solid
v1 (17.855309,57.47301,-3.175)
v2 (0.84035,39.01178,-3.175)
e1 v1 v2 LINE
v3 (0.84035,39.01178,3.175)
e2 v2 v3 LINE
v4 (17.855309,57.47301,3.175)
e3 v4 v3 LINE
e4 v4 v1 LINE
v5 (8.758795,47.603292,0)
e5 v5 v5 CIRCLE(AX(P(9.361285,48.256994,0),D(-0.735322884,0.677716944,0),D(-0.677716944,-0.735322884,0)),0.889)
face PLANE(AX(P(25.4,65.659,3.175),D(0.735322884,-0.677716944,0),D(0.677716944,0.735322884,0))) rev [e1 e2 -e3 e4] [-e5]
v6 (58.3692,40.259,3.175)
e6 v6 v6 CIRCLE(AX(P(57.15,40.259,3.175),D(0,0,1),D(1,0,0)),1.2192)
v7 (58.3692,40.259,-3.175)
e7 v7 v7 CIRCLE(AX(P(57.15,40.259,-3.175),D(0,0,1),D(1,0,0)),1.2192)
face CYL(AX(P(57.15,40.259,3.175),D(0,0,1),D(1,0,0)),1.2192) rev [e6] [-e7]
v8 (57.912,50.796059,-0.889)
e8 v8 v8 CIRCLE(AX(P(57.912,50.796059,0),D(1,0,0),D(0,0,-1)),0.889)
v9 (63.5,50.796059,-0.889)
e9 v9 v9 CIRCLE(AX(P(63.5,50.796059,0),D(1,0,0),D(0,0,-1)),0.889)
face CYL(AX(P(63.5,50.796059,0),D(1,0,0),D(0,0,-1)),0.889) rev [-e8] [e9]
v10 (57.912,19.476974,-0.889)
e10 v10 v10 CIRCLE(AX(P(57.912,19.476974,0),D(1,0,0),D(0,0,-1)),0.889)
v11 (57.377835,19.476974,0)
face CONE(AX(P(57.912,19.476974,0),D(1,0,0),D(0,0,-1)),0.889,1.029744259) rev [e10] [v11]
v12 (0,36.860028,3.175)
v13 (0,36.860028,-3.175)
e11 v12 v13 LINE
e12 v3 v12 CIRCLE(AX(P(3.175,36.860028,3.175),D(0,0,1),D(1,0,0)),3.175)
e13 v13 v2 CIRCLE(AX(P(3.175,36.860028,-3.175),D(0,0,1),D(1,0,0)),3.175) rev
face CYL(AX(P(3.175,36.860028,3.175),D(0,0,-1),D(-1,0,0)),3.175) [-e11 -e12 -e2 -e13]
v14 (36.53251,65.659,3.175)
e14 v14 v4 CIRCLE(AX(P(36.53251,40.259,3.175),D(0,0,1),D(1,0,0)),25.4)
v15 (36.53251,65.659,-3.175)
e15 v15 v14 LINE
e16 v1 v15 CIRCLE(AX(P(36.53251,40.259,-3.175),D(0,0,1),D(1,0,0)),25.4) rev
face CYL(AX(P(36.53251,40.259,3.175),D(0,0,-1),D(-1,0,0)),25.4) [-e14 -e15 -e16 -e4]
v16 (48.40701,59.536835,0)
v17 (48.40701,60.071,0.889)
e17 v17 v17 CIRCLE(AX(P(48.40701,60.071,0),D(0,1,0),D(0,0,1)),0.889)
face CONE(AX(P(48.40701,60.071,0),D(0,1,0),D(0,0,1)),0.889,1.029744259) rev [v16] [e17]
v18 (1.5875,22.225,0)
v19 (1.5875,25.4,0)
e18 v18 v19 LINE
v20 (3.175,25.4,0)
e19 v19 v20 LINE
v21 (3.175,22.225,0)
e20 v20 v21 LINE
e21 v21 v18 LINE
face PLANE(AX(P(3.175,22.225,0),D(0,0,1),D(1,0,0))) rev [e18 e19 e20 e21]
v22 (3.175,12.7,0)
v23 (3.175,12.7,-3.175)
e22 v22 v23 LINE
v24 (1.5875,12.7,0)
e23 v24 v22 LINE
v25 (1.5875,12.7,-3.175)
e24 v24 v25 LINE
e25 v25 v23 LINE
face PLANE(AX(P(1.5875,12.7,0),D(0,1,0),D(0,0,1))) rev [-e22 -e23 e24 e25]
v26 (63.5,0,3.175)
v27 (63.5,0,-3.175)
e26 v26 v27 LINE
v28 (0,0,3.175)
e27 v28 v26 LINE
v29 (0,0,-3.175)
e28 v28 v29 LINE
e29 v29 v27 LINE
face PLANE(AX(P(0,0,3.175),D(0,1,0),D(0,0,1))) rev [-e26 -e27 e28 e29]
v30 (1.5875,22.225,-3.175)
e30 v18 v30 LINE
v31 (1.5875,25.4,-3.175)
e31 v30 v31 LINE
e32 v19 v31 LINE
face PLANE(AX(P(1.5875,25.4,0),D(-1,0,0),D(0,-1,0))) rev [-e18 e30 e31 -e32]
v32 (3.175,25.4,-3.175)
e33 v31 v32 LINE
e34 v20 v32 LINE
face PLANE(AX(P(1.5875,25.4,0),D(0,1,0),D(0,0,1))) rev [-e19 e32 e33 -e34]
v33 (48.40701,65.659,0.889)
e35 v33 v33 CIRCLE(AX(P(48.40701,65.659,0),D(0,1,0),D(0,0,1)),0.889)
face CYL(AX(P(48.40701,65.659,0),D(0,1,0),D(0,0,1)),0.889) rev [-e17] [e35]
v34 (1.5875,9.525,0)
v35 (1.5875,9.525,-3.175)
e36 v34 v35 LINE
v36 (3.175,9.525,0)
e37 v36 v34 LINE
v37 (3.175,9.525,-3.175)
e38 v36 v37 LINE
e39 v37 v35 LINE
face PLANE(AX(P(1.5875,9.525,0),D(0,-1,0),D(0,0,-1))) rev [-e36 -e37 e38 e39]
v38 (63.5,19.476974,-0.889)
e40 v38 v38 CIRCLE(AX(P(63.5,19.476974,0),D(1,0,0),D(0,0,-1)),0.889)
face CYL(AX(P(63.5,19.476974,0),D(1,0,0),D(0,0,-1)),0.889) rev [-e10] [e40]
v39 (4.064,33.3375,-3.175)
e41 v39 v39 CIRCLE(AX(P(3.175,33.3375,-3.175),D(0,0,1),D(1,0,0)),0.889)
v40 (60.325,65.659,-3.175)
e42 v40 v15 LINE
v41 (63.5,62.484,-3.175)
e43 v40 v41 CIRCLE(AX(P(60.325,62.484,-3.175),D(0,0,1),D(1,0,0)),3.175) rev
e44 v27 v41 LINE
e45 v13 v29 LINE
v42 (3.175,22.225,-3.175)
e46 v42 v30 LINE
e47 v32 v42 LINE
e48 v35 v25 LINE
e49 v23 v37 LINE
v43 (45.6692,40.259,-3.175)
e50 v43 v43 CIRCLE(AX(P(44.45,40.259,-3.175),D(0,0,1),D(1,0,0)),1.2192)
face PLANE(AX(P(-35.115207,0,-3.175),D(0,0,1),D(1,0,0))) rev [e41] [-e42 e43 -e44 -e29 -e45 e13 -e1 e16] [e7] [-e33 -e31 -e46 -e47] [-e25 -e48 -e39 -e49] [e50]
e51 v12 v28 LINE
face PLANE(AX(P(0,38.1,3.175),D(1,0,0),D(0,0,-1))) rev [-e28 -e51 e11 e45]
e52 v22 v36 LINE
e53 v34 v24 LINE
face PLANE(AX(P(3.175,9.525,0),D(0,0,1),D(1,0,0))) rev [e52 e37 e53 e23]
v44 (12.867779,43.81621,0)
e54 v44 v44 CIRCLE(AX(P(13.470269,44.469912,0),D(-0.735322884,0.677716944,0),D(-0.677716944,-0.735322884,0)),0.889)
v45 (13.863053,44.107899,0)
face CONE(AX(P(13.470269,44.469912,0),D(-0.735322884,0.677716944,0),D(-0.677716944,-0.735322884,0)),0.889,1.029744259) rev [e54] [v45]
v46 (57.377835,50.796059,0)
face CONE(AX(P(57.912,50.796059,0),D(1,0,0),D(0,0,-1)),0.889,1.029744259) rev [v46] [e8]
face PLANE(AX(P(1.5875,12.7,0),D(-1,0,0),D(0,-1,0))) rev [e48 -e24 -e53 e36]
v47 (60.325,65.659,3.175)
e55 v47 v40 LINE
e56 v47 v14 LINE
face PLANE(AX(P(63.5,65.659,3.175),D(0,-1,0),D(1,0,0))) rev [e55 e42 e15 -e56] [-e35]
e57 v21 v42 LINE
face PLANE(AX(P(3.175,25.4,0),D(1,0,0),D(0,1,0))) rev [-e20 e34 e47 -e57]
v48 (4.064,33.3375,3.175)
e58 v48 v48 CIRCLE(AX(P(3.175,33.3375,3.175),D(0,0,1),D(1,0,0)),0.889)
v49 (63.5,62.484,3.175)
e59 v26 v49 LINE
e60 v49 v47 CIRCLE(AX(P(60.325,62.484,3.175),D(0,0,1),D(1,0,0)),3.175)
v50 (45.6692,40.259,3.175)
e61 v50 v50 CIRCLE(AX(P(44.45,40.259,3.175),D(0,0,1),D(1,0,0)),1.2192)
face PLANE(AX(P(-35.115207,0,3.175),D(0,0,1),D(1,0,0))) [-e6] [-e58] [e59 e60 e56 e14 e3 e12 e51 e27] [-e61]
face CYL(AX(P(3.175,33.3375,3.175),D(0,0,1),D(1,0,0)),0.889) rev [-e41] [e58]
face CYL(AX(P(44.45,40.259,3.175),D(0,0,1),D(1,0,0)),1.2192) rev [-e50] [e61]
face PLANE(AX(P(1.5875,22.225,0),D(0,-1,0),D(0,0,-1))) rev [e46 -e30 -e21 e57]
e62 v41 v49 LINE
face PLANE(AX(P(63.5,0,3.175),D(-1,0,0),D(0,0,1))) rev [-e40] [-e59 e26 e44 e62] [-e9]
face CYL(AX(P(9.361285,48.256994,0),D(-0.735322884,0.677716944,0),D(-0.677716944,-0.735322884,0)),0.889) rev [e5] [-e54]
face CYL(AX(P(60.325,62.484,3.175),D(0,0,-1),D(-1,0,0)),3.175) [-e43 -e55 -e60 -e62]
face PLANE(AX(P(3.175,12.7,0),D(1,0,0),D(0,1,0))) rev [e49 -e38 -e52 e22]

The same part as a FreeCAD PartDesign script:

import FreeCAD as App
import Part
import Sketcher
Q = App.Units.Quantity


def edges_at(feature, points):
    """Names of the edges that pass closest to the given points."""
    edges = feature.Shape.Edges
    near = lambda p: min(range(len(edges)), key=lambda i: edges[i].distToShape(Part.Vertex(*p))[0])
    return sorted({f"Edge{near(p) + 1}" for p in points})

doc = App.newDocument("Part")
body = doc.addObject("PartDesign::Body", "Body")

sketch1 = doc.addObject("Sketcher::SketchObject", "Sketch")
body.addObject(sketch1)
sketch1.AttachmentSupport = (doc.XY_Plane, [""])
sketch1.MapMode = "FlatFace"
sketch1.addGeometry([
    Part.LineSegment(App.Vector(0, 38, 0), App.Vector(0, 0, 0)),
    Part.LineSegment(App.Vector(0, 0, 0), App.Vector(64, 0, 0)),
    Part.LineSegment(App.Vector(64, 0, 0), App.Vector(64, 66, 0)),
    Part.LineSegment(App.Vector(64, 66, 0), App.Vector(25, 66, 0)),
    Part.LineSegment(App.Vector(25, 66, 0), App.Vector(0, 38, 0)),
], False)
sketch1.addConstraint([
    Sketcher.Constraint("Coincident", 0, 2, 1, 1),
    Sketcher.Constraint("Coincident", 1, 2, 2, 1),
    Sketcher.Constraint("Coincident", 2, 2, 3, 1),
    Sketcher.Constraint("Coincident", 3, 2, 4, 1),
    Sketcher.Constraint("Coincident", 4, 2, 0, 1),
    Sketcher.Constraint("Vertical", 0),
    Sketcher.Constraint("Horizontal", 1),
    Sketcher.Constraint("Vertical", 2),
    Sketcher.Constraint("Horizontal", 3),
    Sketcher.Constraint("Coincident", 0, 2, -1, 1),
    Sketcher.Constraint("Equal", 3, 0),
    Sketcher.Constraint("DistanceX", 1, 1, 1, 2, Q("2.5 in")),
    Sketcher.Constraint("DistanceX", 3, 2, 3, 1, Q("1.5 in")),
    Sketcher.Constraint("DistanceY", 2, 1, 2, 2, Q("2.585 in")),
])
pad1 = doc.addObject("PartDesign::Pad", "Pad")
body.addObject(pad1)
pad1.Profile = sketch1
pad1.Length = Q("0.25 in")
pad1.Midplane = True
doc.recompute()

fillet = doc.addObject("PartDesign::Fillet", "Fillet")
body.addObject(fillet)
fillet.Base = (pad1, edges_at(pad1, [(25.4, 65.659, 0)]))
fillet.Radius = Q("1 in")
doc.recompute()

fillet2 = doc.addObject("PartDesign::Fillet", "Fillet001")
body.addObject(fillet2)
fillet2.Base = (fillet, edges_at(fillet, [(0, 38.1, 0)]))
fillet2.Radius = Q("0.125 in")
doc.recompute()

fillet3 = doc.addObject("PartDesign::Fillet", "Fillet002")
body.addObject(fillet3)
fillet3.Base = (fillet2, edges_at(fillet2, [(63.5, 65.659, 0)]))
fillet3.Radius = Q("0.125 in")

sketch2 = doc.addObject("Sketcher::SketchObject", "Sketch001")
body.addObject(sketch2)
sketch2.AttachmentSupport = (doc.YZ_Plane, [""])
sketch2.MapMode = "FlatFace"
sketch2.AttachmentOffset = App.Placement(App.Vector(0, 0, 2.5 * 25.4), App.Rotation())
sketch2.addGeometry([
    Part.Circle(App.Vector(50.8, 0, 0), App.Vector(0, 0, 1), 0.9),
    Part.Circle(App.Vector(19.5, 0, 0), App.Vector(0, 0, 1), 0.9),
], False)
sketch2.addConstraint([
    Sketcher.Constraint("Equal", 0, 1),
    Sketcher.Constraint("PointOnObject", 0, 3, -1),
    Sketcher.Constraint("PointOnObject", 1, 3, -1),
    Sketcher.Constraint("Diameter", 0, Q("0.07 in")),
    Sketcher.Constraint("DistanceX", -1, 1, 0, 3, Q("50.796059 mm")),
    Sketcher.Constraint("DistanceX", -1, 1, 1, 3, Q("19.476974 mm")),
])
doc.recompute()
hole = doc.addObject("PartDesign::Hole", "Hole")
body.addObject(hole)
hole.Profile = sketch2
hole.ThreadType = "None"
hole.Diameter = Q("0.07 in")
hole.DepthType = "Dimension"
hole.Depth = Q("0.22 in")
hole.DrillPoint = "Angled"
hole.DrillPointAngle = 118

sketch3 = doc.addObject("Sketcher::SketchObject", "Sketch002")
body.addObject(sketch3)
sketch3.AttachmentSupport = (doc.XY_Plane, [""])
sketch3.MapMode = "FlatFace"
sketch3.AttachmentOffset = App.Placement(App.Vector(0, 0, 0.125 * 25.4), App.Rotation())
sketch3.addGeometry([
    Part.Circle(App.Vector(57.1, 40.3, 0), App.Vector(0, 0, 1), 1.2),
    Part.Circle(App.Vector(44.5, 40.3, 0), App.Vector(0, 0, 1), 1.2),
], False)
sketch3.addConstraint([
    Sketcher.Constraint("Equal", 0, 1),
    Sketcher.Constraint("Horizontal", 0, 3, 1, 3),
    Sketcher.Constraint("Diameter", 0, Q("0.096 in")),
    Sketcher.Constraint("DistanceX", 1, 3, 0, 3, Q("0.5 in")),
    Sketcher.Constraint("DistanceX", -1, 1, 0, 3, Q("2.25 in")),
    Sketcher.Constraint("DistanceY", -1, 1, 0, 3, Q("1.585 in")),
])
doc.recompute()
hole2 = doc.addObject("PartDesign::Hole", "Hole001")
body.addObject(hole2)
hole2.Profile = sketch3
hole2.ThreadType = "None"
hole2.Diameter = Q("0.096 in")
hole2.DepthType = "Dimension"
hole2.Depth = Q("1 in")
hole2.DrillPoint = "Angled"
hole2.DrillPointAngle = 118

sketch4 = doc.addObject("Sketcher::SketchObject", "Sketch003")
body.addObject(sketch4)
sketch4.AttachmentSupport = (doc.XY_Plane, [""])
sketch4.MapMode = "FlatFace"
sketch4.AttachmentOffset = App.Placement(App.Vector(0, 0, -0.125 * 25.4), App.Rotation())
sketch4.addGeometry([
    Part.LineSegment(App.Vector(3.2, 25.4, 0), App.Vector(3.2, 22.2, 0)),
    Part.LineSegment(App.Vector(3.2, 22.2, 0), App.Vector(1.6, 22.2, 0)),
    Part.LineSegment(App.Vector(1.6, 22.2, 0), App.Vector(1.6, 25.4, 0)),
    Part.LineSegment(App.Vector(1.6, 25.4, 0), App.Vector(3.2, 25.4, 0)),
    Part.LineSegment(App.Vector(3.2, 12.7, 0), App.Vector(3.2, 9.5, 0)),
    Part.LineSegment(App.Vector(3.2, 9.5, 0), App.Vector(1.6, 9.5, 0)),
    Part.LineSegment(App.Vector(1.6, 9.5, 0), App.Vector(1.6, 12.7, 0)),
    Part.LineSegment(App.Vector(1.6, 12.7, 0), App.Vector(3.2, 12.7, 0)),
], False)
sketch4.addConstraint([
    Sketcher.Constraint("Coincident", 0, 2, 1, 1),
    Sketcher.Constraint("Coincident", 1, 2, 2, 1),
    Sketcher.Constraint("Coincident", 2, 2, 3, 1),
    Sketcher.Constraint("Coincident", 3, 2, 0, 1),
    Sketcher.Constraint("Coincident", 4, 2, 5, 1),
    Sketcher.Constraint("Coincident", 5, 2, 6, 1),
    Sketcher.Constraint("Coincident", 6, 2, 7, 1),
    Sketcher.Constraint("Coincident", 7, 2, 4, 1),
    Sketcher.Constraint("Vertical", 0),
    Sketcher.Constraint("Horizontal", 1),
    Sketcher.Constraint("Vertical", 2),
    Sketcher.Constraint("Horizontal", 3),
    Sketcher.Constraint("Vertical", 4),
    Sketcher.Constraint("Horizontal", 5),
    Sketcher.Constraint("Vertical", 6),
    Sketcher.Constraint("Horizontal", 7),
    Sketcher.Constraint("Vertical", 3, 2, 4, 2),
    Sketcher.Constraint("Vertical", 2, 2, 5, 2),
    Sketcher.Constraint("Equal", 2, 4),
    Sketcher.Constraint("DistanceY", -1, 1, 2, 2, Q("1 in")),
    Sketcher.Constraint("DistanceY", -1, 1, 6, 2, Q("0.5 in")),
    Sketcher.Constraint("DistanceX", 1, 2, 1, 1, Q("0.0625 in")),
    Sketcher.Constraint("DistanceY", 0, 2, 0, 1, Q("0.125 in")),
    Sketcher.Constraint("DistanceX", -1, 1, 0, 2, Q("0.125 in")),
])
pocket1 = doc.addObject("PartDesign::Pocket", "Pocket")
body.addObject(pocket1)
pocket1.Profile = sketch4
pocket1.Length = Q("0.125 in")
pocket1.Reversed = True

sketch5 = doc.addObject("Sketcher::SketchObject", "Sketch004")
body.addObject(sketch5)
sketch5.Placement = App.Placement(App.Vector(-18.986784, 17.49934, 0), App.Rotation(App.Vector(0, 0, 1), App.Vector(0.677716944, 0.735322884, 0), App.Vector(-0.735322884, 0.677716944, 0), "ZXY"))
sketch5.addGeometry(Part.Circle(App.Vector(0, 41.8, 0), App.Vector(0, 0, 1), 0.9), False)
sketch5.addConstraint([
    Sketcher.Constraint("PointOnObject", 0, 3, -2),
    Sketcher.Constraint("Diameter", 0, Q("0.07 in")),
    Sketcher.Constraint("DistanceY", -1, 1, 0, 3, Q("41.828774 mm")),
])
doc.recompute()
hole3 = doc.addObject("PartDesign::Hole", "Hole002")
body.addObject(hole3)
hole3.Profile = sketch5
hole3.ThreadType = "None"
hole3.Diameter = Q("0.07 in")
hole3.DepthType = "Dimension"
hole3.Depth = Q("0.22 in")
hole3.DrillPoint = "Angled"
hole3.DrillPointAngle = 118

sketch6 = doc.addObject("Sketcher::SketchObject", "Sketch005")
body.addObject(sketch6)
sketch6.AttachmentSupport = (doc.XZ_Plane, [""])
sketch6.MapMode = "FlatFace"
sketch6.AttachmentOffset = App.Placement(App.Vector(0, 0, -2.585 * 25.4), App.Rotation())
sketch6.addGeometry(Part.Circle(App.Vector(48.4, 0, 0), App.Vector(0, 0, 1), 0.9), False)
sketch6.addConstraint([
    Sketcher.Constraint("PointOnObject", 0, 3, -1),
    Sketcher.Constraint("Diameter", 0, Q("0.07 in")),
    Sketcher.Constraint("DistanceX", -1, 1, 0, 3, Q("48.40701 mm")),
])
doc.recompute()
hole4 = doc.addObject("PartDesign::Hole", "Hole003")
body.addObject(hole4)
hole4.Profile = sketch6
hole4.ThreadType = "None"
hole4.Diameter = Q("0.07 in")
hole4.DepthType = "Dimension"
hole4.Depth = Q("0.22 in")
hole4.DrillPoint = "Angled"
hole4.DrillPointAngle = 118
hole4.Reversed = True

sketch7 = doc.addObject("Sketcher::SketchObject", "Sketch006")
body.addObject(sketch7)
sketch7.AttachmentSupport = (doc.XY_Plane, [""])
sketch7.MapMode = "FlatFace"
sketch7.AttachmentOffset = App.Placement(App.Vector(0, 0, 0.125 * 25.4), App.Rotation())
sketch7.addGeometry(Part.Circle(App.Vector(3.2, 33.3, 0), App.Vector(0, 0, 1), 0.9), False)
sketch7.addConstraint([
    Sketcher.Constraint("Diameter", 0, Q("0.07 in")),
    Sketcher.Constraint("DistanceX", -1, 1, 0, 3, Q("0.125 in")),
    Sketcher.Constraint("DistanceY", -1, 1, 0, 3, Q("1.3125 in")),
])
doc.recompute()
hole5 = doc.addObject("PartDesign::Hole", "Hole004")
body.addObject(hole5)
hole5.Profile = sketch7
hole5.ThreadType = "None"
hole5.Diameter = Q("0.07 in")
hole5.DepthType = "Dimension"
hole5.Depth = Q("0.42 in")
hole5.DrillPoint = "Angled"
hole5.DrillPointAngle = 118

doc.recompute()
